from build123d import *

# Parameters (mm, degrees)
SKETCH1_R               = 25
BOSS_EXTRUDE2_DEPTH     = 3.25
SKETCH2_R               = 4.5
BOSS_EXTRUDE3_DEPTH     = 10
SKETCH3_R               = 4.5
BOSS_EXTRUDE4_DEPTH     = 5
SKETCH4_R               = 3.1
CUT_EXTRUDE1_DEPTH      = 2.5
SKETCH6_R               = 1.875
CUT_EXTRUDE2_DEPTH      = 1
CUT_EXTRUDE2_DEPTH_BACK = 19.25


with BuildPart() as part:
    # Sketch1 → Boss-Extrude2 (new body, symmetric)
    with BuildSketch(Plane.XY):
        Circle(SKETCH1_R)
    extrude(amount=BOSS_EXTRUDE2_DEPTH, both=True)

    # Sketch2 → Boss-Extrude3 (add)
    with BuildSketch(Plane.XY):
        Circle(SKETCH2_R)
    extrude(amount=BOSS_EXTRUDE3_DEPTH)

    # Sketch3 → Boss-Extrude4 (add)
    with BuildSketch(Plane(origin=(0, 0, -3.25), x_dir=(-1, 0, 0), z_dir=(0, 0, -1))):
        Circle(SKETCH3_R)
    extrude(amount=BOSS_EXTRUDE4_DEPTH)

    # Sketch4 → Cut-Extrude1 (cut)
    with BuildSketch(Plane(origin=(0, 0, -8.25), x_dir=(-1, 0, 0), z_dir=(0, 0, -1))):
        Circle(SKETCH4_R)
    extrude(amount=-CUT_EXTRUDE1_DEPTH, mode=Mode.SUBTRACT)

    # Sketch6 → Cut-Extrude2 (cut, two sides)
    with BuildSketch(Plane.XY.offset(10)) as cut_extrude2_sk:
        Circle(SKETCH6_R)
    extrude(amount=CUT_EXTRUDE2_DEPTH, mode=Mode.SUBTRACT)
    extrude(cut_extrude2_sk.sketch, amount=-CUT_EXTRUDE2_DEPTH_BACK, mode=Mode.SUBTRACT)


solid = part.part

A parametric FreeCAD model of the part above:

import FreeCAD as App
import Part
import Sketcher
from FreeCAD import Vector
Q = App.Units.Quantity

doc = App.newDocument("Part")
body = doc.addObject("PartDesign::Body", "Body")

sketch1 = body.newObject("Sketcher::SketchObject", "Sketch")
sketch1.AttachmentSupport = (doc.getObject("XY_Plane"), [""])
sketch1.MapMode = "FlatFace"
sketch1.addGeometry(Part.Circle(Vector(0, 0, 0), Vector(0, 0, 1), 25), False)
sketch1.addConstraint(Sketcher.Constraint("Coincident", 0, 3, -1, 1))
sketch1.addConstraint(Sketcher.Constraint("Diameter", 0, Q("50 mm")))
pad1 = body.newObject("PartDesign::Pad", "Pad")
pad1.Profile = sketch1
pad1.Length = 6.5
pad1.Midplane = True

sketch2 = body.newObject("Sketcher::SketchObject", "Sketch001")
sketch2.AttachmentSupport = (doc.getObject("XY_Plane"), [""])
sketch2.MapMode = "FlatFace"
sketch2.addGeometry(Part.Circle(Vector(0, 0, 0), Vector(0, 0, 1), 4.5), False)
sketch2.addConstraint(Sketcher.Constraint("Coincident", 0, 3, -1, 1))
sketch2.addConstraint(Sketcher.Constraint("Diameter", 0, Q("9 mm")))
pad2 = body.newObject("PartDesign::Pad", "Pad001")
pad2.Profile = sketch2
pad2.Length = 10

sketch3 = body.newObject("Sketcher::SketchObject", "Sketch002")
sketch3.AttachmentSupport = (doc.getObject("XY_Plane"), [""])
sketch3.MapMode = "FlatFace"
sketch3.AttachmentOffset = App.Placement(Vector(0, 0, -3.25), App.Rotation())
sketch3.addGeometry(Part.Circle(Vector(0, 0, 0), Vector(0, 0, 1), 4.5), False)
sketch3.addConstraint(Sketcher.Constraint("Coincident", 0, 3, -1, 1))
sketch3.addConstraint(Sketcher.Constraint("Diameter", 0, Q("9 mm")))
pad3 = body.newObject("PartDesign::Pad", "Pad002")
pad3.Profile = sketch3
pad3.Length = 5
pad3.Reversed = True

sketch4 = body.newObject("Sketcher::SketchObject", "Sketch003")
sketch4.AttachmentSupport = (doc.getObject("XY_Plane"), [""])
sketch4.MapMode = "FlatFace"
sketch4.AttachmentOffset = App.Placement(Vector(0, 0, -8.25), App.Rotation())
sketch4.addGeometry(Part.Circle(Vector(0, 0, 0), Vector(0, 0, 1), 3.1), False)
sketch4.addConstraint(Sketcher.Constraint("Coincident", 0, 3, -1, 1))
sketch4.addConstraint(Sketcher.Constraint("Diameter", 0, Q("6.2 mm")))
pocket1 = body.newObject("PartDesign::Pocket", "Pocket")
pocket1.Profile = sketch4
pocket1.Length = 2.5
pocket1.Reversed = True

sketch5 = body.newObject("Sketcher::SketchObject", "Sketch004")
sketch5.AttachmentSupport = (doc.getObject("XY_Plane"), [""])
sketch5.MapMode = "FlatFace"
sketch5.AttachmentOffset = App.Placement(Vector(0, 0, 10), App.Rotation())
sketch5.addGeometry(Part.Circle(Vector(0, 0, 0), Vector(0, 0, 1), 1.875), False)
sketch5.addConstraint(Sketcher.Constraint("Coincident", 0, 3, -1, 1))
sketch5.addConstraint(Sketcher.Constraint("Diameter", 0, Q("3.75 mm")))
pocket2 = body.newObject("PartDesign::Pocket", "Pocket001")
pocket2.Profile = sketch5
pocket2.Type = "ThroughAll"
pocket2.Midplane = True

doc.recompute()
